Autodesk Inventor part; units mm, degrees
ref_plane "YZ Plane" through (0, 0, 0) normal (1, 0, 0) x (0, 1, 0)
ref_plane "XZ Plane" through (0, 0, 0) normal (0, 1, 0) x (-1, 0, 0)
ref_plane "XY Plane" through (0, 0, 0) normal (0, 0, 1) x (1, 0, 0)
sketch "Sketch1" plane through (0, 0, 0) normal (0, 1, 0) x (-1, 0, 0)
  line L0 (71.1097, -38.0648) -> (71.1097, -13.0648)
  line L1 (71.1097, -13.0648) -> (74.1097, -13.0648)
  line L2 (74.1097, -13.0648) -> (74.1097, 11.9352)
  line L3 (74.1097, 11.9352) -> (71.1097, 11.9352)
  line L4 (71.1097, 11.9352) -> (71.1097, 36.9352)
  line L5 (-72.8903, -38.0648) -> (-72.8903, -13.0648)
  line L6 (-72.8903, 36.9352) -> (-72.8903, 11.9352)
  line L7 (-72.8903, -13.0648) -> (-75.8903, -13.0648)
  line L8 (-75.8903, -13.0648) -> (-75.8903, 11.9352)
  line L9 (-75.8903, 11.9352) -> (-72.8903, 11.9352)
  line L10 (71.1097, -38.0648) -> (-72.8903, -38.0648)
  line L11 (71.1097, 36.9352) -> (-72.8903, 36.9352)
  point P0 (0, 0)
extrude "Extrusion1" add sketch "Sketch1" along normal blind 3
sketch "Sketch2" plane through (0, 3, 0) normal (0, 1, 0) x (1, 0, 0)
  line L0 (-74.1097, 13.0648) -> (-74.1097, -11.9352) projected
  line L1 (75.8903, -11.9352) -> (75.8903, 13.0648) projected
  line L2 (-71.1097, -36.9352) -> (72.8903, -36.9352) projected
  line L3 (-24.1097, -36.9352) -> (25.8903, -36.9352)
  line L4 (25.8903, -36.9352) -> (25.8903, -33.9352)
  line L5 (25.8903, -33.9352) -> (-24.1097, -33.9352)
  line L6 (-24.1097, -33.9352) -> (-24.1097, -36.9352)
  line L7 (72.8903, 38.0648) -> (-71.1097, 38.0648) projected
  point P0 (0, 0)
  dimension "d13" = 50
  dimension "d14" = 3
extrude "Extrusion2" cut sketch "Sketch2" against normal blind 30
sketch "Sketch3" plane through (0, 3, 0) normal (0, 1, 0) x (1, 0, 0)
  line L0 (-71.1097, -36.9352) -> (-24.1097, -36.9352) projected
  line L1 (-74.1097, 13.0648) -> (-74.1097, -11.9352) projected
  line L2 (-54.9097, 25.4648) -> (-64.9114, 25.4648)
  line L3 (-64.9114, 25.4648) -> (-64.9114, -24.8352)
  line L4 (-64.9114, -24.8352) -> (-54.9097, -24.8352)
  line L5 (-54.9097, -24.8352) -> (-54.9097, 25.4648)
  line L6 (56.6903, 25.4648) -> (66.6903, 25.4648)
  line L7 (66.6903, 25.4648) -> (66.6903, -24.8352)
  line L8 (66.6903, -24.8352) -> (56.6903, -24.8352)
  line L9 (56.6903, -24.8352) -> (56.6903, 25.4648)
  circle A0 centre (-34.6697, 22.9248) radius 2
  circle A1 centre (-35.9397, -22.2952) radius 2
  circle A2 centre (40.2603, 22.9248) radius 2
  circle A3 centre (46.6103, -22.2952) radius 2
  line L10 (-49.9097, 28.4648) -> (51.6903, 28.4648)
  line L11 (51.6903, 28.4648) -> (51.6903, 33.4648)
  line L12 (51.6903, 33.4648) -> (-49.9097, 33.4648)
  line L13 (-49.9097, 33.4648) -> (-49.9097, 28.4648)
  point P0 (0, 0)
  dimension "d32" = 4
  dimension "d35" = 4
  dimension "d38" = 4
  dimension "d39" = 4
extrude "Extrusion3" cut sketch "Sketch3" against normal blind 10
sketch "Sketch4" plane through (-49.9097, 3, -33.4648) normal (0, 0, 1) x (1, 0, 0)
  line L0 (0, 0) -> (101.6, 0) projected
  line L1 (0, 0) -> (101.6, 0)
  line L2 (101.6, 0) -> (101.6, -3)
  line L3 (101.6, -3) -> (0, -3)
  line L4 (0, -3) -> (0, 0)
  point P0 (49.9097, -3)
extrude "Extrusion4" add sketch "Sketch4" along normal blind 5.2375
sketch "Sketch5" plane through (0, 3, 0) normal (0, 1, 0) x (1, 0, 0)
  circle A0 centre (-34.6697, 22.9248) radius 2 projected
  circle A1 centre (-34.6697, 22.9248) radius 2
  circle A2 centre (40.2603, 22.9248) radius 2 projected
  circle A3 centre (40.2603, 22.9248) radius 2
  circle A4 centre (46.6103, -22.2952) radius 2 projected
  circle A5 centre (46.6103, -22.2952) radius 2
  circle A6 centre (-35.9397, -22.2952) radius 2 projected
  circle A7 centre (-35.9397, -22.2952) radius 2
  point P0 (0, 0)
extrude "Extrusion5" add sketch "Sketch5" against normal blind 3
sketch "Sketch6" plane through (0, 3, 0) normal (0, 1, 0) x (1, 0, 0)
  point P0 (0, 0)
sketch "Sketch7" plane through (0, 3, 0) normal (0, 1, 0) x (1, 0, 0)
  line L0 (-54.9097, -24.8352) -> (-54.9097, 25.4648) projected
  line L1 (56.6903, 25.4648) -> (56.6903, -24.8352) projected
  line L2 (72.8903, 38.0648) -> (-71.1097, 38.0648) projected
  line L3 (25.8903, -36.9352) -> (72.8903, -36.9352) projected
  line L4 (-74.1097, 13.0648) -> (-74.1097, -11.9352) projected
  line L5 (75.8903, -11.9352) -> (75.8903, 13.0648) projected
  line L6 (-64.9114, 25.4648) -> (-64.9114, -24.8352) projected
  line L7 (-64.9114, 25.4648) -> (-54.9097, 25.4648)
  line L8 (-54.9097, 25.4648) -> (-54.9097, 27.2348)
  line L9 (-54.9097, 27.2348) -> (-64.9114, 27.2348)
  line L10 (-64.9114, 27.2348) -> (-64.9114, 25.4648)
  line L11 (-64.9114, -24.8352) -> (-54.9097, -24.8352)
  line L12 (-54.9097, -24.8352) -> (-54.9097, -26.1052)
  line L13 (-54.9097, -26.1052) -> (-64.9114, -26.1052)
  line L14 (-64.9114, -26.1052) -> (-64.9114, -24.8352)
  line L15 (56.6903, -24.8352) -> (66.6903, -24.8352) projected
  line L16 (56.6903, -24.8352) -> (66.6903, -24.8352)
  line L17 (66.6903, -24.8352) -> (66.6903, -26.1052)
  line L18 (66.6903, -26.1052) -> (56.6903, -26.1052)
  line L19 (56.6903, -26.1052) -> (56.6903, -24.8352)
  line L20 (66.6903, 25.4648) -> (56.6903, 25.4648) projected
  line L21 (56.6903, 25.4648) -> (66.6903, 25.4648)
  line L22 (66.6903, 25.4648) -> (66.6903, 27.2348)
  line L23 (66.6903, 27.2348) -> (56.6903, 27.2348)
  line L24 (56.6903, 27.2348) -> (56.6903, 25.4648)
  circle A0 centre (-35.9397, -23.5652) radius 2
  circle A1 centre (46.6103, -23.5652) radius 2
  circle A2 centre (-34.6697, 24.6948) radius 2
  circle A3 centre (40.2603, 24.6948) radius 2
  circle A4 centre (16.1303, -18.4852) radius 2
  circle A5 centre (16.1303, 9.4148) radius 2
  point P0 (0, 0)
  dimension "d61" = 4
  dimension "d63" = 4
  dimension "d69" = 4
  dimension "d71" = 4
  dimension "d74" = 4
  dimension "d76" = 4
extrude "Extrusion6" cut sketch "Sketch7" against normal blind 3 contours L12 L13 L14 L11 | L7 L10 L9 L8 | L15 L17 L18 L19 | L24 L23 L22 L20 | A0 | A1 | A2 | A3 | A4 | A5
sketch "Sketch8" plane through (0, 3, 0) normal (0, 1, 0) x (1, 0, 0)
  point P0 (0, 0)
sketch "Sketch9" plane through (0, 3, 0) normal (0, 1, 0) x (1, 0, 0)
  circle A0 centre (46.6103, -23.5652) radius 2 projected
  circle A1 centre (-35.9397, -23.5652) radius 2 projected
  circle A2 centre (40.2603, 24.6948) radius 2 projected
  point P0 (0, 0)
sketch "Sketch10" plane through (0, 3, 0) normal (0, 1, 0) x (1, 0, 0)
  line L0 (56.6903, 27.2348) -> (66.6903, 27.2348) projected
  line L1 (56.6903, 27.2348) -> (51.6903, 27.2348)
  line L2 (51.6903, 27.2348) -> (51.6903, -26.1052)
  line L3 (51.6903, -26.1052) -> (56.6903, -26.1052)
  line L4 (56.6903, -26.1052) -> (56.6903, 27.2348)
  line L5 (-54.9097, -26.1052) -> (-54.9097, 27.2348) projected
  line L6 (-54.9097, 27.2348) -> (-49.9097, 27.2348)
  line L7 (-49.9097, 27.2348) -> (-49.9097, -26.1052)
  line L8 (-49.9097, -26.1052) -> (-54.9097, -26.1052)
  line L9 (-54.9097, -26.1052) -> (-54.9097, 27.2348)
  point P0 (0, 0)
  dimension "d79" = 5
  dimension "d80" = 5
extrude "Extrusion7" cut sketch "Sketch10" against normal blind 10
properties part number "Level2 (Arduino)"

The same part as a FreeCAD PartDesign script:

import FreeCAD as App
import Part
import Sketcher

V = App.Vector

doc = App.newDocument("Part")
body = doc.addObject("PartDesign::Body", "Body")

sketch1 = body.newObject("Sketcher::SketchObject", "Sketch")
sketch1.AttachmentSupport = (doc.getObject("XZ_Plane"), [""])
sketch1.MapMode = "FlatFace"
sketch1.addGeometry(Part.LineSegment(V(72.8903, -38.0648, 0), V(-71.1097, -38.0648, 0)), False)
sketch1.addGeometry(Part.LineSegment(V(-71.1097, -38.0648, 0), V(-71.1097, -13.0648, 0)), False)
sketch1.addGeometry(Part.LineSegment(V(-71.1097, -13.0648, 0), V(-74.1097, -13.0648, 0)), False)
sketch1.addGeometry(Part.LineSegment(V(-74.1097, -13.0648, 0), V(-74.1097, 11.9352, 0)), False)
sketch1.addGeometry(Part.LineSegment(V(-74.1097, 11.9352, 0), V(-71.1097, 11.9352, 0)), False)
sketch1.addGeometry(Part.LineSegment(V(-71.1097, 11.9352, 0), V(-71.1097, 36.9352, 0)), False)
sketch1.addGeometry(Part.LineSegment(V(-71.1097, 36.9352, 0), V(72.8903, 36.9352, 0)), False)
sketch1.addGeometry(Part.LineSegment(V(72.8903, 36.9352, 0), V(72.8903, 11.9352, 0)), False)
sketch1.addGeometry(Part.LineSegment(V(72.8903, 11.9352, 0), V(75.8903, 11.9352, 0)), False)
sketch1.addGeometry(Part.LineSegment(V(75.8903, 11.9352, 0), V(75.8903, -13.0648, 0)), False)
sketch1.addGeometry(Part.LineSegment(V(75.8903, -13.0648, 0), V(72.8903, -13.0648, 0)), False)
sketch1.addGeometry(Part.LineSegment(V(72.8903, -13.0648, 0), V(72.8903, -38.0648, 0)), False)
sketch1.addConstraint(Sketcher.Constraint("Coincident", 0, 2, 1, 1))
sketch1.addConstraint(Sketcher.Constraint("Coincident", 1, 2, 2, 1))
sketch1.addConstraint(Sketcher.Constraint("Coincident", 2, 2, 3, 1))
sketch1.addConstraint(Sketcher.Constraint("Coincident", 3, 2, 4, 1))
sketch1.addConstraint(Sketcher.Constraint("Coincident", 4, 2, 5, 1))
sketch1.addConstraint(Sketcher.Constraint("Coincident", 5, 2, 6, 1))
sketch1.addConstraint(Sketcher.Constraint("Coincident", 6, 2, 7, 1))
sketch1.addConstraint(Sketcher.Constraint("Coincident", 7, 2, 8, 1))
sketch1.addConstraint(Sketcher.Constraint("Coincident", 8, 2, 9, 1))
sketch1.addConstraint(Sketcher.Constraint("Coincident", 9, 2, 10, 1))
sketch1.addConstraint(Sketcher.Constraint("Coincident", 10, 2, 11, 1))
sketch1.addConstraint(Sketcher.Constraint("Coincident", 11, 2, 0, 1))
sketch1.addConstraint(Sketcher.Constraint("Horizontal", 0))
sketch1.addConstraint(Sketcher.Constraint("Vertical", 1))
sketch1.addConstraint(Sketcher.Constraint("Horizontal", 2))
sketch1.addConstraint(Sketcher.Constraint("Vertical", 3))
sketch1.addConstraint(Sketcher.Constraint("Horizontal", 4))
sketch1.addConstraint(Sketcher.Constraint("Vertical", 5))
sketch1.addConstraint(Sketcher.Constraint("Horizontal", 6))
sketch1.addConstraint(Sketcher.Constraint("Vertical", 7))
sketch1.addConstraint(Sketcher.Constraint("Horizontal", 8))
sketch1.addConstraint(Sketcher.Constraint("Vertical", 9))
sketch1.addConstraint(Sketcher.Constraint("Horizontal", 10))
sketch1.addConstraint(Sketcher.Constraint("Vertical", 11))
sketch1.addConstraint(Sketcher.Constraint("Horizontal", 4, 2, 7, 2))
sketch1.addConstraint(Sketcher.Constraint("Horizontal", 2, 2, 9, 2))
sketch1.addConstraint(Sketcher.Constraint("Vertical", 1, 2, 4, 2))
sketch1.addConstraint(Sketcher.Constraint("Vertical", 7, 2, 10, 2))
sketch1.addConstraint(Sketcher.Constraint("Equal", 4, 8))
sketch1.addConstraint(Sketcher.Constraint("Equal", 1, 3))
sketch1.addConstraint(Sketcher.Constraint("Equal", 3, 5))
sketch1.addConstraint(Sketcher.Constraint("DistanceX", 0, 2, 0, 1, 144.0))
sketch1.addConstraint(Sketcher.Constraint("DistanceX", 2, 2, 2, 1, 3.0))
sketch1.addConstraint(Sketcher.Constraint("DistanceY", 1, 1, 1, 2, 25.0))
sketch1.addConstraint(Sketcher.Constraint("DistanceX", 0, 2, -1, 1, 71.1097))
sketch1.addConstraint(Sketcher.Constraint("DistanceY", 0, 2, -1, 1, 38.0648))
pad1 = body.newObject("PartDesign::Pad", "Pad")
pad1.Profile = sketch1
pad1.Length = 3
pad1.Reversed = True

sketch2 = body.newObject("Sketcher::SketchObject", "Sketch001")
sketch2.AttachmentSupport = (doc.getObject("XZ_Plane"), [""])
sketch2.MapMode = "FlatFace"
sketch2.AttachmentOffset = App.Placement(V(0, 0, -3), App.Rotation())
sketch2.addGeometry(Part.LineSegment(V(-24.1097, 33.9352, 0), V(-24.1097, 36.9352, 0)), False)
sketch2.addGeometry(Part.LineSegment(V(-24.1097, 36.9352, 0), V(25.8903, 36.9352, 0)), False)
sketch2.addGeometry(Part.LineSegment(V(25.8903, 36.9352, 0), V(25.8903, 33.9352, 0)), False)
sketch2.addGeometry(Part.LineSegment(V(25.8903, 33.9352, 0), V(-24.1097, 33.9352, 0)), False)
sketch2.addConstraint(Sketcher.Constraint("Coincident", 0, 2, 1, 1))
sketch2.addConstraint(Sketcher.Constraint("Coincident", 1, 2, 2, 1))
sketch2.addConstraint(Sketcher.Constraint("Coincident", 2, 2, 3, 1))
sketch2.addConstraint(Sketcher.Constraint("Coincident", 3, 2, 0, 1))
sketch2.addConstraint(Sketcher.Constraint("Vertical", 0))
sketch2.addConstraint(Sketcher.Constraint("Horizontal", 1))
sketch2.addConstraint(Sketcher.Constraint("Vertical", 2))
sketch2.addConstraint(Sketcher.Constraint("Horizontal", 3))
sketch2.addConstraint(Sketcher.Constraint("DistanceX", 1, 1, 1, 2, 50.0))
sketch2.addConstraint(Sketcher.Constraint("DistanceY", 0, 1, 0, 2, 3.0))
sketch2.addConstraint(Sketcher.Constraint("DistanceX", 0, 2, -1, 1, 24.1097))
sketch2.addConstraint(Sketcher.Constraint("DistanceY", -1, 1, 0, 2, 36.9352))
pocket1 = body.newObject("PartDesign::Pocket", "Pocket")
pocket1.Profile = sketch2
pocket1.Length = 30
pocket1.Reversed = True

sketch3 = body.newObject("Sketcher::SketchObject", "Sketch002")
sketch3.AttachmentSupport = (doc.getObject("XZ_Plane"), [""])
sketch3.MapMode = "FlatFace"
sketch3.AttachmentOffset = App.Placement(V(0, 0, -3), App.Rotation())
sketch3.addGeometry(Part.LineSegment(V(-54.9097, 24.8352, 0), V(-54.9097, -25.4648, 0)), False)
sketch3.addGeometry(Part.LineSegment(V(-54.9097, -25.4648, 0), V(-64.9114, -25.4648, 0)), False)
sketch3.addGeometry(Part.LineSegment(V(-64.9114, -25.4648, 0), V(-64.9114, 24.8352, 0)), False)
sketch3.addGeometry(Part.LineSegment(V(-64.9114, 24.8352, 0), V(-54.9097, 24.8352, 0)), False)
sketch3.addGeometry(Part.LineSegment(V(66.6903, -25.4648, 0), V(56.6903, -25.4648, 0)), False)
sketch3.addGeometry(Part.LineSegment(V(56.6903, -25.4648, 0), V(56.6903, 24.8352, 0)), False)
sketch3.addGeometry(Part.LineSegment(V(56.6903, 24.8352, 0), V(66.6903, 24.8352, 0)), False)
sketch3.addGeometry(Part.LineSegment(V(66.6903, 24.8352, 0), V(66.6903, -25.4648, 0)), False)
sketch3.addGeometry(Part.Circle(V(-34.6697, -22.9248, 0), V(0, 0, 1), 2), False)
sketch3.addGeometry(Part.Circle(V(-35.9397, 22.2952, 0), V(0, 0, 1), 2), False)
sketch3.addGeometry(Part.Circle(V(40.2603, -22.9248, 0), V(0, 0, 1), 2), False)
sketch3.addGeometry(Part.Circle(V(46.6103, 22.2952, 0), V(0, 0, 1), 2), False)
sketch3.addGeometry(Part.LineSegment(V(-49.9097, -33.4648, 0), V(-49.9097, -28.4648, 0)), False)
sketch3.addGeometry(Part.LineSegment(V(-49.9097, -28.4648, 0), V(51.6903, -28.4648, 0)), False)
sketch3.addGeometry(Part.LineSegment(V(51.6903, -28.4648, 0), V(51.6903, -33.4648, 0)), False)
sketch3.addGeometry(Part.LineSegment(V(51.6903, -33.4648, 0), V(-49.9097, -33.4648, 0)), False)
sketch3.addConstraint(Sketcher.Constraint("Coincident", 0, 2, 1, 1))
sketch3.addConstraint(Sketcher.Constraint("Coincident", 1, 2, 2, 1))
sketch3.addConstraint(Sketcher.Constraint("Coincident", 2, 2, 3, 1))
sketch3.addConstraint(Sketcher.Constraint("Coincident", 3, 2, 0, 1))
sketch3.addConstraint(Sketcher.Constraint("Coincident", 4, 2, 5, 1))
sketch3.addConstraint(Sketcher.Constraint("Coincident", 5, 2, 6, 1))
sketch3.addConstraint(Sketcher.Constraint("Coincident", 6, 2, 7, 1))
sketch3.addConstraint(Sketcher.Constraint("Coincident", 7, 2, 4, 1))
sketch3.addConstraint(Sketcher.Constraint("Coincident", 12, 2, 13, 1))
sketch3.addConstraint(Sketcher.Constraint("Coincident", 13, 2, 14, 1))
sketch3.addConstraint(Sketcher.Constraint("Coincident", 14, 2, 15, 1))
sketch3.addConstraint(Sketcher.Constraint("Coincident", 15, 2, 12, 1))
sketch3.addConstraint(Sketcher.Constraint("Vertical", 0))
sketch3.addConstraint(Sketcher.Constraint("Horizontal", 1))
sketch3.addConstraint(Sketcher.Constraint("Vertical", 2))
sketch3.addConstraint(Sketcher.Constraint("Horizontal", 3))
sketch3.addConstraint(Sketcher.Constraint("Horizontal", 4))
sketch3.addConstraint(Sketcher.Constraint("Vertical", 5))
sketch3.addConstraint(Sketcher.Constraint("Horizontal", 6))
sketch3.addConstraint(Sketcher.Constraint("Vertical", 7))
sketch3.addConstraint(Sketcher.Constraint("Vertical", 12))
sketch3.addConstraint(Sketcher.Constraint("Horizontal", 13))
sketch3.addConstraint(Sketcher.Constraint("Vertical", 14))
sketch3.addConstraint(Sketcher.Constraint("Horizontal", 15))
sketch3.addConstraint(Sketcher.Constraint("Equal", 8, 9))
sketch3.addConstraint(Sketcher.Constraint("Equal", 9, 10))
sketch3.addConstraint(Sketcher.Constraint("Equal", 10, 11))
sketch3.addConstraint(Sketcher.Constraint("Horizontal", 8, 3, 10, 3))
sketch3.addConstraint(Sketcher.Constraint("Horizontal", 9, 3, 11, 3))
sketch3.addConstraint(Sketcher.Constraint("Horizontal", 1, 2, 4, 2))
sketch3.addConstraint(Sketcher.Constraint("Horizontal", 3, 2, 5, 2))
sketch3.addConstraint(Sketcher.Constraint("Diameter", 8, 4.0))
sketch3.addConstraint(Sketcher.Constraint("DistanceX", 4, 2, 4, 1, 10.0))
sketch3.addConstraint(Sketcher.Constraint("DistanceY", 12, 1, 12, 2, 5.0))
sketch3.addConstraint(Sketcher.Constraint("DistanceX", 13, 1, 13, 2, 101.6))
sketch3.addConstraint(Sketcher.Constraint("DistanceY", 0, 2, 0, 1, 50.3))
sketch3.addConstraint(Sketcher.Constraint("DistanceX", 0, 2, 12, 2, 5.0))
sketch3.addConstraint(Sketcher.Constraint("DistanceY", 12, 2, 0, 2, 3.0))
sketch3.addConstraint(Sketcher.Constraint("DistanceX", 13, 2, 4, 2, 5.0))
sketch3.addConstraint(Sketcher.Constraint("DistanceX", 9, 3, 10, 3, 76.2))
sketch3.addConstraint(Sketcher.Constraint("DistanceX", 9, 3, 8, 3, 1.27))
sketch3.addConstraint(Sketcher.Constraint("DistanceY", 8, 3, 9, 3, 45.22))
sketch3.addConstraint(Sketcher.Constraint("DistanceX", 10, 3, 11, 3, 6.35))
sketch3.addConstraint(Sketcher.Constraint("DistanceX", 0, 2, 8, 3, 20.24))
sketch3.addConstraint(Sketcher.Constraint("DistanceY", 0, 2, 8, 3, 2.54))
sketch3.addConstraint(Sketcher.Constraint("DistanceX", 1, 2, 1, 1, 10.0017))
sketch3.addConstraint(Sketcher.Constraint("DistanceX", 8, 3, -1, 1, 34.6697))
sketch3.addConstraint(Sketcher.Constraint("DistanceY", 8, 3, -1, 1, 22.9248))
pocket2 = body.newObject("PartDesign::Pocket", "Pocket001")
pocket2.Profile = sketch3
pocket2.Length = 10
pocket2.Reversed = True

sketch4 = body.newObject("Sketcher::SketchObject", "Sketch003")
sketch4.AttachmentSupport = (doc.getObject("XY_Plane"), [""])
sketch4.MapMode = "FlatFace"
sketch4.AttachmentOffset = App.Placement(V(0, 0, -33.4648), App.Rotation())
sketch4.addGeometry(Part.LineSegment(V(51.6903, 3, 0), V(-49.9097, 3, 0)), False)
sketch4.addGeometry(Part.LineSegment(V(-49.9097, 3, 0), V(-49.9097, 0, 0)), False)
sketch4.addGeometry(Part.LineSegment(V(-49.9097, 0, 0), V(51.6903, 0, 0)), False)
sketch4.addGeometry(Part.LineSegment(V(51.6903, 0, 0), V(51.6903, 3, 0)), False)
sketch4.addConstraint(Sketcher.Constraint("Coincident", 0, 2, 1, 1))
sketch4.addConstraint(Sketcher.Constraint("Coincident", 1, 2, 2, 1))
sketch4.addConstraint(Sketcher.Constraint("Coincident", 2, 2, 3, 1))
sketch4.addConstraint(Sketcher.Constraint("Coincident", 3, 2, 0, 1))
sketch4.addConstraint(Sketcher.Constraint("Horizontal", 0))
sketch4.addConstraint(Sketcher.Constraint("Vertical", 1))
sketch4.addConstraint(Sketcher.Constraint("Horizontal", 2))
sketch4.addConstraint(Sketcher.Constraint("Vertical", 3))
sketch4.addConstraint(Sketcher.Constraint("PointOnObject", 1, 2, -1))
sketch4.addConstraint(Sketcher.Constraint("DistanceY", 1, 2, 1, 1, 3.0))
sketch4.addConstraint(Sketcher.Constraint("DistanceX", 0, 2, 0, 1, 101.6))
sketch4.addConstraint(Sketcher.Constraint("DistanceX", 0, 2, -1, 1, 49.9097))
pad2 = body.newObject("PartDesign::Pad", "Pad001")
pad2.Profile = sketch4
pad2.Length = 5.2375

sketch5 = body.newObject("Sketcher::SketchObject", "Sketch004")
sketch5.AttachmentSupport = (doc.getObject("XZ_Plane"), [""])
sketch5.MapMode = "FlatFace"
sketch5.AttachmentOffset = App.Placement(V(0, 0, -3), App.Rotation())
sketch5.addGeometry(Part.Circle(V(-34.6697, -22.9248, 0), V(0, 0, 1), 2), False)
sketch5.addGeometry(Part.Circle(V(40.2603, -22.9248, 0), V(0, 0, 1), 2), False)
sketch5.addGeometry(Part.Circle(V(46.6103, 22.2952, 0), V(0, 0, 1), 2), False)
sketch5.addGeometry(Part.Circle(V(-35.9397, 22.2952, 0), V(0, 0, 1), 2), False)
sketch5.addConstraint(Sketcher.Constraint("Equal", 0, 1))
sketch5.addConstraint(Sketcher.Constraint("Equal", 1, 2))
sketch5.addConstraint(Sketcher.Constraint("Equal", 2, 3))
sketch5.addConstraint(Sketcher.Constraint("Horizontal", 0, 3, 1, 3))
sketch5.addConstraint(Sketcher.Constraint("Horizontal", 2, 3, 3, 3))
sketch5.addConstraint(Sketcher.Constraint("Diameter", 0, 4.0))
sketch5.addConstraint(Sketcher.Constraint("DistanceX", 3, 3, 1, 3, 76.2))
sketch5.addConstraint(Sketcher.Constraint("DistanceX", 0, 3, 1, 3, 74.93))
sketch5.addConstraint(Sketcher.Constraint("DistanceX", 1, 3, 2, 3, 6.35))
sketch5.addConstraint(Sketcher.Constraint("DistanceY", 1, 3, 2, 3, 45.22))
sketch5.addConstraint(Sketcher.Constraint("DistanceX", 0, 3, -1, 1, 34.6697))
sketch5.addConstraint(Sketcher.Constraint("DistanceY", 0, 3, -1, 1, 22.9248))
pad3 = body.newObject("PartDesign::Pad", "Pad002")
pad3.Profile = sketch5
pad3.Length = 3

sketch6 = body.newObject("Sketcher::SketchObject", "Sketch005")
sketch6.AttachmentSupport = (doc.getObject("XZ_Plane"), [""])
sketch6.MapMode = "FlatFace"
sketch6.AttachmentOffset = App.Placement(V(0, 0, -3), App.Rotation())
sketch6.addGeometry(Part.LineSegment(V(-54.9097, 26.1052, 0), V(-54.9097, 24.8352, 0)), False)
sketch6.addGeometry(Part.LineSegment(V(-54.9097, 24.8352, 0), V(-64.9114, 24.8352, 0)), False)
sketch6.addGeometry(Part.LineSegment(V(-64.9114, 24.8352, 0), V(-64.9114, 26.1052, 0)), False)
sketch6.addGeometry(Part.LineSegment(V(-64.9114, 26.1052, 0), V(-54.9097, 26.1052, 0)), False)
sketch6.addGeometry(Part.LineSegment(V(-64.9114, -25.4648, 0), V(-54.9097, -25.4648, 0)), False)
sketch6.addGeometry(Part.LineSegment(V(-54.9097, -25.4648, 0), V(-54.9097, -27.2348, 0)), False)
sketch6.addGeometry(Part.LineSegment(V(-54.9097, -27.2348, 0), V(-64.9114, -27.2348, 0)), False)
sketch6.addGeometry(Part.LineSegment(V(-64.9114, -27.2348, 0), V(-64.9114, -25.4648, 0)), False)
sketch6.addGeometry(Part.LineSegment(V(66.6903, 24.8352, 0), V(56.6903, 24.8352, 0)), False)
sketch6.addGeometry(Part.LineSegment(V(56.6903, 24.8352, 0), V(56.6903, 26.1052, 0)), False)
sketch6.addGeometry(Part.LineSegment(V(56.6903, 26.1052, 0), V(66.6903, 26.1052, 0)), False)
sketch6.addGeometry(Part.LineSegment(V(66.6903, 26.1052, 0), V(66.6903, 24.8352, 0)), False)
sketch6.addGeometry(Part.LineSegment(V(56.6903, -27.2348, 0), V(56.6903, -25.4648, 0)), False)
sketch6.addGeometry(Part.LineSegment(V(56.6903, -25.4648, 0), V(66.6903, -25.4648, 0)), False)
sketch6.addGeometry(Part.LineSegment(V(66.6903, -25.4648, 0), V(66.6903, -27.2348, 0)), False)
sketch6.addGeometry(Part.LineSegment(V(66.6903, -27.2348, 0), V(56.6903, -27.2348, 0)), False)
sketch6.addGeometry(Part.Circle(V(-35.9397, 23.5652, 0), V(0, 0, 1), 2), False)
sketch6.addGeometry(Part.Circle(V(46.6103, 23.5652, 0), V(0, 0, 1), 2), False)
sketch6.addGeometry(Part.Circle(V(-34.6697, -24.6948, 0), V(0, 0, 1), 2), False)
sketch6.addGeometry(Part.Circle(V(40.2603, -24.6948, 0), V(0, 0, 1), 2), False)
sketch6.addGeometry(Part.Circle(V(16.1303, 18.4852, 0), V(0, 0, 1), 2), False)
sketch6.addGeometry(Part.Circle(V(16.1303, -9.4148, 0), V(0, 0, 1), 2), False)
sketch6.addConstraint(Sketcher.Constraint("Coincident", 0, 2, 1, 1))
sketch6.addConstraint(Sketcher.Constraint("Coincident", 1, 2, 2, 1))
sketch6.addConstraint(Sketcher.Constraint("Coincident", 2, 2, 3, 1))
sketch6.addConstraint(Sketcher.Constraint("Coincident", 3, 2, 0, 1))
sketch6.addConstraint(Sketcher.Constraint("Coincident", 4, 2, 5, 1))
sketch6.addConstraint(Sketcher.Constraint("Coincident", 5, 2, 6, 1))
sketch6.addConstraint(Sketcher.Constraint("Coincident", 6, 2, 7, 1))
sketch6.addConstraint(Sketcher.Constraint("Coincident", 7, 2, 4, 1))
sketch6.addConstraint(Sketcher.Constraint("Coincident", 8, 2, 9, 1))
sketch6.addConstraint(Sketcher.Constraint("Coincident", 9, 2, 10, 1))
sketch6.addConstraint(Sketcher.Constraint("Coincident", 10, 2, 11, 1))
sketch6.addConstraint(Sketcher.Constraint("Coincident", 11, 2, 8, 1))
sketch6.addConstraint(Sketcher.Constraint("Coincident", 12, 2, 13, 1))
sketch6.addConstraint(Sketcher.Constraint("Coincident", 13, 2, 14, 1))
sketch6.addConstraint(Sketcher.Constraint("Coincident", 14, 2, 15, 1))
sketch6.addConstraint(Sketcher.Constraint("Coincident", 15, 2, 12, 1))
sketch6.addConstraint(Sketcher.Constraint("Vertical", 0))
sketch6.addConstraint(Sketcher.Constraint("Horizontal", 1))
sketch6.addConstraint(Sketcher.Constraint("Vertical", 2))
sketch6.addConstraint(Sketcher.Constraint("Horizontal", 3))
sketch6.addConstraint(Sketcher.Constraint("Horizontal", 4))
sketch6.addConstraint(Sketcher.Constraint("Vertical", 5))
sketch6.addConstraint(Sketcher.Constraint("Horizontal", 6))
sketch6.addConstraint(Sketcher.Constraint("Vertical", 7))
sketch6.addConstraint(Sketcher.Constraint("Horizontal", 8))
sketch6.addConstraint(Sketcher.Constraint("Vertical", 9))
sketch6.addConstraint(Sketcher.Constraint("Horizontal", 10))
sketch6.addConstraint(Sketcher.Constraint("Vertical", 11))
sketch6.addConstraint(Sketcher.Constraint("Vertical", 12))
sketch6.addConstraint(Sketcher.Constraint("Horizontal", 13))
sketch6.addConstraint(Sketcher.Constraint("Vertical", 14))
sketch6.addConstraint(Sketcher.Constraint("Horizontal", 15))
sketch6.addConstraint(Sketcher.Constraint("Equal", 16, 17))
sketch6.addConstraint(Sketcher.Constraint("Equal", 17, 18))
sketch6.addConstraint(Sketcher.Constraint("Equal", 18, 19))
sketch6.addConstraint(Sketcher.Constraint("Equal", 19, 20))
sketch6.addConstraint(Sketcher.Constraint("Equal", 20, 21))
sketch6.addConstraint(Sketcher.Constraint("Horizontal", 16, 3, 17, 3))
sketch6.addConstraint(Sketcher.Constraint("Horizontal", 18, 3, 19, 3))
sketch6.addConstraint(Sketcher.Constraint("Horizontal", 1, 2, 8, 2))
sketch6.addConstraint(Sketcher.Constraint("Horizontal", 3, 2, 9, 2))
sketch6.addConstraint(Sketcher.Constraint("Horizontal", 7, 2, 12, 2))
sketch6.addConstraint(Sketcher.Constraint("Horizontal", 6, 2, 14, 2))
sketch6.addConstraint(Sketcher.Constraint("Vertical", 20, 3, 21, 3))
sketch6.addConstraint(Sketcher.Constraint("Vertical", 3, 2, 4, 2))
sketch6.addConstraint(Sketcher.Constraint("Vertical", 2, 2, 6, 2))
sketch6.addConstraint(Sketcher.Constraint("Vertical", 9, 2, 12, 2))
sketch6.addConstraint(Sketcher.Constraint("Vertical", 11, 2, 13, 2))
sketch6.addConstraint(Sketcher.Constraint("Diameter", 16, 4.0))
sketch6.addConstraint(Sketcher.Constraint("DistanceX", 8, 2, 8, 1, 10.0))
sketch6.addConstraint(Sketcher.Constraint("DistanceY", 0, 2, 0, 1, 1.27))
sketch6.addConstraint(Sketcher.Constraint("DistanceY", 5, 2, 5, 1, 1.77))
sketch6.addConstraint(Sketcher.Constraint("DistanceX", 16, 3, 19, 3, 76.2))
sketch6.addConstraint(Sketcher.Constraint("DistanceX", 18, 3, 20, 3, 50.8))
sketch6.addConstraint(Sketcher.Constraint("DistanceY", 21, 3, 20, 3, 27.9))
sketch6.addConstraint(Sketcher.Constraint("DistanceY", 18, 3, 2, 2, 50.8))
sketch6.addConstraint(Sketcher.Constraint("DistanceY", 4, 2, 0, 2, 50.3))
sketch6.addConstraint(Sketcher.Constraint("DistanceX", 16, 3, 17, 3, 82.55))
sketch6.addConstraint(Sketcher.Constraint("DistanceX", 16, 3, 18, 3, 1.27))
sketch6.addConstraint(Sketcher.Constraint("DistanceY", 18, 3, 16, 3, 48.26))
sketch6.addConstraint(Sketcher.Constraint("DistanceY", 20, 3, 17, 3, 5.08))
sketch6.addConstraint(Sketcher.Constraint("DistanceX", 0, 2, 16, 3, 18.97))
sketch6.addConstraint(Sketcher.Constraint("DistanceX", 17, 3, 8, 2, 10.08))
sketch6.addConstraint(Sketcher.Constraint("DistanceX", 1, 2, 1, 1, 10.0017))
sketch6.addConstraint(Sketcher.Constraint("DistanceX", 16, 3, -1, 1, 35.9397))
sketch6.addConstraint(Sketcher.Constraint("DistanceY", -1, 1, 16, 3, 23.5652))
pocket3 = body.newObject("PartDesign::Pocket", "Pocket002")
pocket3.Profile = sketch6
pocket3.Length = 3
pocket3.Reversed = True

sketch7 = body.newObject("Sketcher::SketchObject", "Sketch006")
sketch7.AttachmentSupport = (doc.getObject("XZ_Plane"), [""])
sketch7.MapMode = "FlatFace"
sketch7.AttachmentOffset = App.Placement(V(0, 0, -3), App.Rotation())
sketch7.addGeometry(Part.LineSegment(V(56.6903, 26.1052, 0), V(56.6903, -27.2348, 0)), False)
sketch7.addGeometry(Part.LineSegment(V(56.6903, -27.2348, 0), V(51.6903, -27.2348, 0)), False)
sketch7.addGeometry(Part.LineSegment(V(51.6903, -27.2348, 0), V(51.6903, 26.1052, 0)), False)
sketch7.addGeometry(Part.LineSegment(V(51.6903, 26.1052, 0), V(56.6903, 26.1052, 0)), False)
sketch7.addGeometry(Part.LineSegment(V(-54.9097, -27.2348, 0), V(-54.9097, 26.1052, 0)), False)
sketch7.addGeometry(Part.LineSegment(V(-54.9097, 26.1052, 0), V(-49.9097, 26.1052, 0)), False)
sketch7.addGeometry(Part.LineSegment(V(-49.9097, 26.1052, 0), V(-49.9097, -27.2348, 0)), False)
sketch7.addGeometry(Part.LineSegment(V(-49.9097, -27.2348, 0), V(-54.9097, -27.2348, 0)), False)
sketch7.addConstraint(Sketcher.Constraint("Coincident", 0, 2, 1, 1))
sketch7.addConstraint(Sketcher.Constraint("Coincident", 1, 2, 2, 1))
sketch7.addConstraint(Sketcher.Constraint("Coincident", 2, 2, 3, 1))
sketch7.addConstraint(Sketcher.Constraint("Coincident", 3, 2, 0, 1))
sketch7.addConstraint(Sketcher.Constraint("Coincident", 4, 2, 5, 1))
sketch7.addConstraint(Sketcher.Constraint("Coincident", 5, 2, 6, 1))
sketch7.addConstraint(Sketcher.Constraint("Coincident", 6, 2, 7, 1))
sketch7.addConstraint(Sketcher.Constraint("Coincident", 7, 2, 4, 1))
sketch7.addConstraint(Sketcher.Constraint("Vertical", 0))
sketch7.addConstraint(Sketcher.Constraint("Horizontal", 1))
sketch7.addConstraint(Sketcher.Constraint("Vertical", 2))
sketch7.addConstraint(Sketcher.Constraint("Horizontal", 3))
sketch7.addConstraint(Sketcher.Constraint("Vertical", 4))
sketch7.addConstraint(Sketcher.Constraint("Horizontal", 5))
sketch7.addConstraint(Sketcher.Constraint("Vertical", 6))
sketch7.addConstraint(Sketcher.Constraint("Horizontal", 7))
sketch7.addConstraint(Sketcher.Constraint("Horizontal", 3, 2, 4, 2))
sketch7.addConstraint(Sketcher.Constraint("Horizontal", 1, 2, 6, 2))
sketch7.addConstraint(Sketcher.Constraint("Equal", 3, 5))
sketch7.addConstraint(Sketcher.Constraint("DistanceX", 1, 2, 1, 1, 5.0))
sketch7.addConstraint(Sketcher.Constraint("DistanceY", 0, 2, 0, 1, 53.34))
sketch7.addConstraint(Sketcher.Constraint("DistanceX", 4, 2, 2, 2, 106.6))
sketch7.addConstraint(Sketcher.Constraint("DistanceX", -1, 1, 0, 2, 56.6903))
sketch7.addConstraint(Sketcher.Constraint("DistanceY", 0, 2, -1, 1, 27.2348))
pocket4 = body.newObject("PartDesign::Pocket", "Pocket003")
pocket4.Profile = sketch7
pocket4.Length = 10
pocket4.Reversed = True

doc.recompute()
